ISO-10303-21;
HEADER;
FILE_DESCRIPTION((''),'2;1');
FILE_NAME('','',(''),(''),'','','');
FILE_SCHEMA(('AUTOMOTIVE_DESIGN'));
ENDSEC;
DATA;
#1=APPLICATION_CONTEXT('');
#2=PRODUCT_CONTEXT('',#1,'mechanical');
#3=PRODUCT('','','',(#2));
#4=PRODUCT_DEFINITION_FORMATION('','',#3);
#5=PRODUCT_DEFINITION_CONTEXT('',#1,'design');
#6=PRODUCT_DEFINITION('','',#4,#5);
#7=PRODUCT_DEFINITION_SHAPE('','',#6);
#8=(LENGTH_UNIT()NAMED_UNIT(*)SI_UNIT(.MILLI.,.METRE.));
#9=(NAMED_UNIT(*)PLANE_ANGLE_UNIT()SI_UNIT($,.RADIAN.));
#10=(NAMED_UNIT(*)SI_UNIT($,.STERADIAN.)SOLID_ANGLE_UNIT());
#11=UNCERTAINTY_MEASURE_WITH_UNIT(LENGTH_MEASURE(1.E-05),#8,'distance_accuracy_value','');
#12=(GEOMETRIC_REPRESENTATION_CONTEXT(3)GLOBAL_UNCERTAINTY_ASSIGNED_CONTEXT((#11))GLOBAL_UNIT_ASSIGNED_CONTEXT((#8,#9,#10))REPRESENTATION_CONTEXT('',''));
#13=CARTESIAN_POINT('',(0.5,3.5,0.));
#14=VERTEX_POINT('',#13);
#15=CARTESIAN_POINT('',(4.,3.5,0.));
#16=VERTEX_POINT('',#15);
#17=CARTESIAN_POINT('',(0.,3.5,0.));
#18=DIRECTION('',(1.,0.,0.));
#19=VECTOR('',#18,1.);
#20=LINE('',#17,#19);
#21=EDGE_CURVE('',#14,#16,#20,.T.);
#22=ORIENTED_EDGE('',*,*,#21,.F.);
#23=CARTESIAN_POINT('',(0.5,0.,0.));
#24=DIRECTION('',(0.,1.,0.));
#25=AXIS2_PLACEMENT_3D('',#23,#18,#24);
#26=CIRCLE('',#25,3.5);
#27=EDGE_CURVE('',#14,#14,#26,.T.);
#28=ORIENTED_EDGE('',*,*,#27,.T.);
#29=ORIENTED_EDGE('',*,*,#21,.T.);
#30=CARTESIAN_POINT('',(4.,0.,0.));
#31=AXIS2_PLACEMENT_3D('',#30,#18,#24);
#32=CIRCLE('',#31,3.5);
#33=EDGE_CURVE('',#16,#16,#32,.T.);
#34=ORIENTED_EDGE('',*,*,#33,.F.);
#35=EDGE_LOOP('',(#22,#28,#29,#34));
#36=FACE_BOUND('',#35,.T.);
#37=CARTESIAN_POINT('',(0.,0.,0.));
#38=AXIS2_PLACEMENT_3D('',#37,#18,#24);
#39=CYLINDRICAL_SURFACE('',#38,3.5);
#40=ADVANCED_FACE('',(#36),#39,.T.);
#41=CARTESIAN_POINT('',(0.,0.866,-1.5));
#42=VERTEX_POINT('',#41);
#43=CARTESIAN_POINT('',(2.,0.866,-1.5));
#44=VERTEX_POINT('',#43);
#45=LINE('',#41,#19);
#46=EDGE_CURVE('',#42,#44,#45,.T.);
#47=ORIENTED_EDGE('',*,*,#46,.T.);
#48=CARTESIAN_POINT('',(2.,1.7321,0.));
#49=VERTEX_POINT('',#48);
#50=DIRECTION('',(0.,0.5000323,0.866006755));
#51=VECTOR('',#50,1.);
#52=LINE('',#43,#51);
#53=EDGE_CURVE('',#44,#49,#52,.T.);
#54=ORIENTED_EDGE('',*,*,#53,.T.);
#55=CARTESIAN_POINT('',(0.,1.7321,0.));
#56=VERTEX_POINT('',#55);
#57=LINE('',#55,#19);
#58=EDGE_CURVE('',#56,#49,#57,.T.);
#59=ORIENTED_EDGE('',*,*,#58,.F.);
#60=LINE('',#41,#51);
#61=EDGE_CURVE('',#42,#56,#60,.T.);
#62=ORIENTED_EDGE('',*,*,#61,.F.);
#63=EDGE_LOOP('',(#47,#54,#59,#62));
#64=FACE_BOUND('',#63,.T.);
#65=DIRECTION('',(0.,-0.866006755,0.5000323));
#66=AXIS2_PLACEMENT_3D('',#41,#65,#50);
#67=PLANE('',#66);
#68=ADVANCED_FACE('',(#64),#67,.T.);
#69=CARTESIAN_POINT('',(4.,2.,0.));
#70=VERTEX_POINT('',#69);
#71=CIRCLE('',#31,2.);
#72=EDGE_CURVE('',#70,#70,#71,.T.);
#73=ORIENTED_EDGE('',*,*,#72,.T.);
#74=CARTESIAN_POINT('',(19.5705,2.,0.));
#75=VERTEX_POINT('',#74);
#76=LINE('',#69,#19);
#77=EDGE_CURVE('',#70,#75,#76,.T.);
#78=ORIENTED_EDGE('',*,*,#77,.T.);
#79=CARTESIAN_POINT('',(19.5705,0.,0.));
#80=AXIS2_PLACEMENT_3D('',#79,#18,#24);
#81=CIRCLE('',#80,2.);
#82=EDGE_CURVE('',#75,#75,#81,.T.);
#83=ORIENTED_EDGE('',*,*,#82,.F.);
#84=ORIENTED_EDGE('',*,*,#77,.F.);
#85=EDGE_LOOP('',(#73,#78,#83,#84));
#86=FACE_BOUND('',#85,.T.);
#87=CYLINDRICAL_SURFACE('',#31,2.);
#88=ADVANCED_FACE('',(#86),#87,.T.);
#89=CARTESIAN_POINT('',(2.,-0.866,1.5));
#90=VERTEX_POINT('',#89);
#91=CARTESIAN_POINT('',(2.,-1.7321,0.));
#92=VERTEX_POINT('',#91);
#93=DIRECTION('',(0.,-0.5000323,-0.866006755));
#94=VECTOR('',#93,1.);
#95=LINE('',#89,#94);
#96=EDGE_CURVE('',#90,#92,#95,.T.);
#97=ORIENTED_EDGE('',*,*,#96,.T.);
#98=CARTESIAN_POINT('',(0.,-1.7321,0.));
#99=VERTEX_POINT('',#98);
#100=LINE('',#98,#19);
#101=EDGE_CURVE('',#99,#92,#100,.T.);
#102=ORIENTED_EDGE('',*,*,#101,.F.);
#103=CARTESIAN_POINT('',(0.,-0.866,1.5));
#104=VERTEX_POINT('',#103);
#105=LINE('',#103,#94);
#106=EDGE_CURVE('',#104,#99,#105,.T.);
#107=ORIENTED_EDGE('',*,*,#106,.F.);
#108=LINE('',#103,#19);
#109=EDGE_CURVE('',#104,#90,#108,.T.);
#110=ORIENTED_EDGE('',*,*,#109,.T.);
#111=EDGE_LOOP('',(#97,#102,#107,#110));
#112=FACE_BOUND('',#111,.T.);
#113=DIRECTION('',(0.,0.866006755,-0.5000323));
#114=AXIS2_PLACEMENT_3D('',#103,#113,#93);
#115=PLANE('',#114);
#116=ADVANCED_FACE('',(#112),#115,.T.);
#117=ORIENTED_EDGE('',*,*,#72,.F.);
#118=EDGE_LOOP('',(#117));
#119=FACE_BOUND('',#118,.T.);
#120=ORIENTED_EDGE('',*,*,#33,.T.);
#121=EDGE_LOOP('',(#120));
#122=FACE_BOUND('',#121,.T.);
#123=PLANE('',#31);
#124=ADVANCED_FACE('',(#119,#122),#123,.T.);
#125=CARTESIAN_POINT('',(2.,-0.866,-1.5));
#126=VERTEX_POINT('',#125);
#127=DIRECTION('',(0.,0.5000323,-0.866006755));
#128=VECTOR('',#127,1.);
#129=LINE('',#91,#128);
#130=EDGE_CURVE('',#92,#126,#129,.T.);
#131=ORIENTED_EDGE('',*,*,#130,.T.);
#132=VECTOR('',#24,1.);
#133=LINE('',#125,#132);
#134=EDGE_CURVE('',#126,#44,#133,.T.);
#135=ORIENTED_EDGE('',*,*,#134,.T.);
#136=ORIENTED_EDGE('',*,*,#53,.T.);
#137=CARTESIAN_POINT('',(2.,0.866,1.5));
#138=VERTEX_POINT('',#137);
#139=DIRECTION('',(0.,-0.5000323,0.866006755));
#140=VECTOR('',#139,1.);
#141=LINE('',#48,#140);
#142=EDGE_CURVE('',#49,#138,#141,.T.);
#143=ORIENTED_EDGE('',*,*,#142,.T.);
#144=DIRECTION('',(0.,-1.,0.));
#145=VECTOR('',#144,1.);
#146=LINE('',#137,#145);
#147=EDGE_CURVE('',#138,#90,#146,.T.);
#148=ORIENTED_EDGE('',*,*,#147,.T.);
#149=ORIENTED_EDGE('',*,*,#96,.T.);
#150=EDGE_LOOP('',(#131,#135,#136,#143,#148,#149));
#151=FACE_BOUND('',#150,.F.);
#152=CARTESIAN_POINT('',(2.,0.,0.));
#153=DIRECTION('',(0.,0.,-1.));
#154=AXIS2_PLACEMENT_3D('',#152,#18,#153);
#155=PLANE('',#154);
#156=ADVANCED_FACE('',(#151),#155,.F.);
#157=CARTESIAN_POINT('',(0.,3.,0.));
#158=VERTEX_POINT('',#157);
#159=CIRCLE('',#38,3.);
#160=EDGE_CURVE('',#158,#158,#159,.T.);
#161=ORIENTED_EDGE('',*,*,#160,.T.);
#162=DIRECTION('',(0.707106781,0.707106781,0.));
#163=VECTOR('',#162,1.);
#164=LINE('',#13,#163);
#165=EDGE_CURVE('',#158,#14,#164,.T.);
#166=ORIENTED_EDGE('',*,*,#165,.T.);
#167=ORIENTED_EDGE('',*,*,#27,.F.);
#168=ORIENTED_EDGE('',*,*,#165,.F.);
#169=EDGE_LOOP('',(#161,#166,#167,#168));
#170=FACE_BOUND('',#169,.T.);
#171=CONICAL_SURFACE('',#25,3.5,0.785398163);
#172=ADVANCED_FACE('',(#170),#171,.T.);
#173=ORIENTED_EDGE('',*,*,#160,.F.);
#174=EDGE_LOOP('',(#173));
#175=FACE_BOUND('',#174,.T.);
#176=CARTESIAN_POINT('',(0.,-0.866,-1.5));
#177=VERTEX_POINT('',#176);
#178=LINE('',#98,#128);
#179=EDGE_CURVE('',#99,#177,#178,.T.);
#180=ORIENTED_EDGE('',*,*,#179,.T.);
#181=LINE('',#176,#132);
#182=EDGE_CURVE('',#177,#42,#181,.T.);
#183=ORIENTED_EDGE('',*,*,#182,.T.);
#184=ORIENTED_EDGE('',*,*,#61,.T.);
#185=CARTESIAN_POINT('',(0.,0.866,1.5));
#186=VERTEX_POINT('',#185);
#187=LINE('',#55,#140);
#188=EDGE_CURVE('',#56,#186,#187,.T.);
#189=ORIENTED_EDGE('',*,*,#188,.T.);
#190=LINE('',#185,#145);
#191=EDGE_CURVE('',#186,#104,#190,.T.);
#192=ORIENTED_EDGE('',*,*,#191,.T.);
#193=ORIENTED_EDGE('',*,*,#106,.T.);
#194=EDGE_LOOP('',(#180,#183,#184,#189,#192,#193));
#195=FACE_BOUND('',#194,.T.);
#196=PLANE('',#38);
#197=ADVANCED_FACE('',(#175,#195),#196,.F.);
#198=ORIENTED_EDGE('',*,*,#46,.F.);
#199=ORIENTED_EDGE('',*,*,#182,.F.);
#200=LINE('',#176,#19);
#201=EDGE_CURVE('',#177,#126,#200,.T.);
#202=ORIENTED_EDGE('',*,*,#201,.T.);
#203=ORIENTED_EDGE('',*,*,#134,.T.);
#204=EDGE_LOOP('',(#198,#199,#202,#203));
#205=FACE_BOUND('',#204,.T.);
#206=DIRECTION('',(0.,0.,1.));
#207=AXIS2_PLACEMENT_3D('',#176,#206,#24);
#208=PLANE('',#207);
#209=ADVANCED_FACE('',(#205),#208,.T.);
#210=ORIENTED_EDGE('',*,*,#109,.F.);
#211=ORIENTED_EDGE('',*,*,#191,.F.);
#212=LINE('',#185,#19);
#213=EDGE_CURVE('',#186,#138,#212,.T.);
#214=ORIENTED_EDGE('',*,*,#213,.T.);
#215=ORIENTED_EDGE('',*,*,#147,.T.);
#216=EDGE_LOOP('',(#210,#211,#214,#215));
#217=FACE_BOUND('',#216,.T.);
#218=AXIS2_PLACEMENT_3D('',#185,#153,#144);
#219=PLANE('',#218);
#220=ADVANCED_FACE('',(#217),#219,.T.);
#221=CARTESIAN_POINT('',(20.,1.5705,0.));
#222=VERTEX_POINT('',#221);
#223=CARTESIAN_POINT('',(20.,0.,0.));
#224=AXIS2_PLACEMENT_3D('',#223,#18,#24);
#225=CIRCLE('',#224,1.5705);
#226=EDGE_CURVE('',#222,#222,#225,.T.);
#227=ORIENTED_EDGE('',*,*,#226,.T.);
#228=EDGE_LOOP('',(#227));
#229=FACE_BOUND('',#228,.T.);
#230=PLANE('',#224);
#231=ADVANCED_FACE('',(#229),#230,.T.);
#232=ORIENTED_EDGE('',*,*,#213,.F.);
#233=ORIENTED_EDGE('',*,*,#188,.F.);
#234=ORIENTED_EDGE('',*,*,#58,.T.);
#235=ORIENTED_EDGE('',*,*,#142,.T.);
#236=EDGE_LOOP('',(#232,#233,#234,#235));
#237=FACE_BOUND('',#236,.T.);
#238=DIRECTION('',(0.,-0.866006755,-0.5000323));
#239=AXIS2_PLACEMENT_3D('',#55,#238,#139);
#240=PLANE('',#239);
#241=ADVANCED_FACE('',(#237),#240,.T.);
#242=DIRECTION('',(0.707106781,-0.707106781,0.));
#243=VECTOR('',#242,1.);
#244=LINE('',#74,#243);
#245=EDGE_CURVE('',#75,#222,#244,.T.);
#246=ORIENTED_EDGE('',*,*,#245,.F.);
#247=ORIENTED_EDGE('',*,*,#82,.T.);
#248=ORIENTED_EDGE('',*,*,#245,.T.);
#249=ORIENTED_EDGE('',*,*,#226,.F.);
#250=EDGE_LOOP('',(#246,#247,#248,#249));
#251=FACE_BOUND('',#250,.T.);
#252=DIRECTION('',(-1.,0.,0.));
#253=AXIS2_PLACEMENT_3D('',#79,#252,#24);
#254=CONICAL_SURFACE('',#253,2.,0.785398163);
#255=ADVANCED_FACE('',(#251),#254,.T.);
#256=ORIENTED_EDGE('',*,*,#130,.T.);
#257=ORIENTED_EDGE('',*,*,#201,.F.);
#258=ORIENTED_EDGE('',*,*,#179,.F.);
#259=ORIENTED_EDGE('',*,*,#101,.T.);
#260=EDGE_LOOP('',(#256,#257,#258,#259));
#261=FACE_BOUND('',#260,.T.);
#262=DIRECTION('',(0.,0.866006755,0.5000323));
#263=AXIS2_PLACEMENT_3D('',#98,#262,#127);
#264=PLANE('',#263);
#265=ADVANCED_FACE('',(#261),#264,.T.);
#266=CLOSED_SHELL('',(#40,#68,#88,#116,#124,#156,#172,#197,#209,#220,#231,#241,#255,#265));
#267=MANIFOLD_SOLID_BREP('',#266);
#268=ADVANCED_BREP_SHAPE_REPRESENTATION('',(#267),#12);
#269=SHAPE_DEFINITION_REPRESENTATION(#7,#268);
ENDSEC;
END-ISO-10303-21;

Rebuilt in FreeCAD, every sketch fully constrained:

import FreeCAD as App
import Part
import Sketcher

V = App.Vector
Q = App.Units.Quantity


def edges_at(feature, points):
    """Names of the edges that pass closest to the given points."""
    edges = feature.Shape.Edges
    near = lambda p: min(range(len(edges)), key=lambda i: edges[i].distToShape(Part.Vertex(*p))[0])
    return sorted({f"Edge{near(p) + 1}" for p in points})


def add_polygon(sketch, points):
    """Adds a closed chain of lines whose ends are joined by coincident constraints."""
    first, n = sketch.GeometryCount, len(points)
    for a, b in zip(points, points[1:] + points[:1]):
        sketch.addGeometry(Part.LineSegment(App.Vector(*a, 0), App.Vector(*b, 0)), False)
    for i in range(n):
        sketch.addConstraint(Sketcher.Constraint("Coincident", first + i, 2, first + (i + 1) % n, 1))

doc = App.newDocument("Part")
body = doc.addObject("PartDesign::Body", "Body")

# Sketch on XY plane
sketch1 = body.newObject("Sketcher::SketchObject", "Sketch")
sketch1.AttachmentSupport = (doc.getObject("XY_Plane"), [""])
sketch1.MapMode = "FlatFace"
add_polygon(sketch1, [(0, 0), (20, 0), (20, 1.6), (19.6, 2), (4, 2), (4, 3.5), (0, 3.5)])  # lines 0-6
sketch1.addConstraint([
    Sketcher.Constraint("Horizontal", 0),
    Sketcher.Constraint("Vertical", 1),
    Sketcher.Constraint("Horizontal", 3),
    Sketcher.Constraint("Vertical", 4),
    Sketcher.Constraint("Horizontal", 5),
    Sketcher.Constraint("Vertical", 6),
    Sketcher.Constraint("Coincident", 6, 2, -1, 1),
    Sketcher.Constraint("DistanceX", 0, 1, 0, 2, 20.0),
    Sketcher.Constraint("DistanceX", 5, 2, 5, 1, 4.0),
    Sketcher.Constraint("Angle", 2, Q("135 deg")),
    Sketcher.Constraint("DistanceY", 4, 1, 4, 2, 1.5),
    Sketcher.Constraint("DistanceY", 6, 2, 6, 1, 3.5),
    Sketcher.Constraint("DistanceX", 3, 2, 3, 1, 15.5705),
])
revolution = body.newObject("PartDesign::Revolution", "Revolution")
revolution.Profile = sketch1
revolution.ReferenceAxis = (sketch1, ["H_Axis"])
revolution.Angle = 360

# Sketch on YZ plane
sketch2 = body.newObject("Sketcher::SketchObject", "Sketch001")
sketch2.AttachmentSupport = (doc.getObject("YZ_Plane"), [""])
sketch2.MapMode = "FlatFace"
add_polygon(sketch2, [(0.9, 1.5), (-0.9, 1.5), (-1.7, 0), (-0.9, -1.5), (0.9, -1.5), (1.7, 0)])  # lines 0-5
sketch2.addConstraint([
    Sketcher.Constraint("Horizontal", 0),
    Sketcher.Constraint("Horizontal", 3),
    Sketcher.Constraint("Symmetric", 0, 2, 3, 2, -1, 1),
    Sketcher.Constraint("Symmetric", 1, 2, 4, 2, -1, 1),
    Sketcher.Constraint("PointOnObject", 1, 2, -1),
    Sketcher.Constraint("Parallel", 2, 5),
    Sketcher.Constraint("Vertical", 0, 2, 2, 2),
    Sketcher.Constraint("DistanceY", 2, 2, 0, 2, 3.0),
    Sketcher.Constraint("DistanceX", 0, 2, 0, 1, 1.732),
    Sketcher.Constraint("Distance", 1, 1.732),
])
pocket1 = body.newObject("PartDesign::Pocket", "Pocket")
pocket1.Profile = sketch2
pocket1.Length = 2
pocket1.Reversed = True
doc.recompute()

chamfer = body.newObject("PartDesign::Chamfer", "Chamfer")
chamfer.Base = (pocket1, edges_at(pocket1, [(0, -3.5, 0)]))
chamfer.Size = 0.5

doc.recompute()
